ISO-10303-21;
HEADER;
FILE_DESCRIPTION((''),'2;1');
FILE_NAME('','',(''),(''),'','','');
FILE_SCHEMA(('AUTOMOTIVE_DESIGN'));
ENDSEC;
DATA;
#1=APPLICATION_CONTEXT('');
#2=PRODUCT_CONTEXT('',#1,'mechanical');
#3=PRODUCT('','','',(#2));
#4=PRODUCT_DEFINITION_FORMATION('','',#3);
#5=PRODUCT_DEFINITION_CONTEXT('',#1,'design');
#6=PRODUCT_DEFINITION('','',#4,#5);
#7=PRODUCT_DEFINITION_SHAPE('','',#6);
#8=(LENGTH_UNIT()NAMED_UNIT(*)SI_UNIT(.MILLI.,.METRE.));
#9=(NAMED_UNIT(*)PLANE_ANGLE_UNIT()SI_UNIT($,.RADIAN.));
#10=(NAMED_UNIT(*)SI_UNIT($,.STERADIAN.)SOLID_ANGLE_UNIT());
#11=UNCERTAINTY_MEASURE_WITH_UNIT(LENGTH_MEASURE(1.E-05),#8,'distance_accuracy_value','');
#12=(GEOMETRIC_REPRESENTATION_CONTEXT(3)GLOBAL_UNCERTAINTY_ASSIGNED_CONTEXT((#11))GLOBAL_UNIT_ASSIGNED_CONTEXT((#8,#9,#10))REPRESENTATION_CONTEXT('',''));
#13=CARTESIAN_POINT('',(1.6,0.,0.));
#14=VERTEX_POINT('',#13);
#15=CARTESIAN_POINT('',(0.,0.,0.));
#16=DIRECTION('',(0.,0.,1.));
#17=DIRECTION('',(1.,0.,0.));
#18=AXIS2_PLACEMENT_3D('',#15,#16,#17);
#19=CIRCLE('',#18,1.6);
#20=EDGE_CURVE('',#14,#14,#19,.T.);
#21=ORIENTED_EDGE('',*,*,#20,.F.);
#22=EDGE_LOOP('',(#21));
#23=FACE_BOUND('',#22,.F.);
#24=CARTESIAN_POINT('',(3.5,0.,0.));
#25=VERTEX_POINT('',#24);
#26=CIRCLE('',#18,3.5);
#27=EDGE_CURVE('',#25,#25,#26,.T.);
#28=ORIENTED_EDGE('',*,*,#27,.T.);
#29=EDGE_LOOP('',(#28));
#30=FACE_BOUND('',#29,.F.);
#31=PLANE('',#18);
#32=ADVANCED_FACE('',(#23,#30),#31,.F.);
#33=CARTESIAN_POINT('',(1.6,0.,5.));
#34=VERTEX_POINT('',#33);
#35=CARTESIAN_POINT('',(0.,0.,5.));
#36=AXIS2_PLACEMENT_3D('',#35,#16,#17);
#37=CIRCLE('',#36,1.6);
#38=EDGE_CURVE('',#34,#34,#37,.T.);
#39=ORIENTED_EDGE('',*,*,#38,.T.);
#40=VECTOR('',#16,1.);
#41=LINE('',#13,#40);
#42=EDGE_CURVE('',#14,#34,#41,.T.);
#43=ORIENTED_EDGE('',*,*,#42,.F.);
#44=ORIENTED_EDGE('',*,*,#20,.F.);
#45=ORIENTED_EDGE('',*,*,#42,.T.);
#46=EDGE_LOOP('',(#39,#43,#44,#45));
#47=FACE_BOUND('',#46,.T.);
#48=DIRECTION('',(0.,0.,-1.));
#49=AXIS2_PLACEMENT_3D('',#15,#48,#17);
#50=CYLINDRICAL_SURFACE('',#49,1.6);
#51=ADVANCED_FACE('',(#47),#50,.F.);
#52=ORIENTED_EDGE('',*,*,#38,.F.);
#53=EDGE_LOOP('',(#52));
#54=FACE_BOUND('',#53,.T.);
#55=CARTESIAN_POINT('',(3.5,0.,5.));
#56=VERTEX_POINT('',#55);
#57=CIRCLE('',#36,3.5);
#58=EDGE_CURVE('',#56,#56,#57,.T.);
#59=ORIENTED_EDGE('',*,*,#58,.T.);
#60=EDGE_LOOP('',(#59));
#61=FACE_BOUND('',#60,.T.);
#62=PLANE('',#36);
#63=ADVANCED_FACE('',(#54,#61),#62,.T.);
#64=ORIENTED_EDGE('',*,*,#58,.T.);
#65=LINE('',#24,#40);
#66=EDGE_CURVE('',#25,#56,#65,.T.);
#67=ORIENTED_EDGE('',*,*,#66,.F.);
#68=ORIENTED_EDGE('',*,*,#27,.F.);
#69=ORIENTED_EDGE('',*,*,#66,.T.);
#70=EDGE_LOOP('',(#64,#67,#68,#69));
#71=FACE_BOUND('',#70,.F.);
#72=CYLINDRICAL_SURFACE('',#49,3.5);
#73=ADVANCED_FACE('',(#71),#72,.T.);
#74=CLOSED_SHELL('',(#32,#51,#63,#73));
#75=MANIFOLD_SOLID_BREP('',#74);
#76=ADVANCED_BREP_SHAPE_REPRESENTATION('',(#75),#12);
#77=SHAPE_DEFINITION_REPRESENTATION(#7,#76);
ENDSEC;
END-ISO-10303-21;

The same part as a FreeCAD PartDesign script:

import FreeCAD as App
import Part
import Sketcher
Q = App.Units.Quantity

doc = App.newDocument("Part")
body = doc.addObject("PartDesign::Body", "Body")

sketch1 = body.newObject("Sketcher::SketchObject", "Sketch")
sketch1.AttachmentSupport = (doc.getObject("XY_Plane"), [""])
sketch1.MapMode = "FlatFace"
sketch1.addGeometry([
    Part.Circle(App.Vector(0, 0, 0), App.Vector(0, 0, 1), 3.5),
    Part.Circle(App.Vector(0, 0, 0), App.Vector(0, 0, 1), 1.6),
], False)
sketch1.addConstraint([
    Sketcher.Constraint("Coincident", 0, 3, -1, 1),
    Sketcher.Constraint("Coincident", 1, 3, -1, 1),
    Sketcher.Constraint("Diameter", 0, Q("7 mm")),
    Sketcher.Constraint("Diameter", 1, Q("3.2 mm")),
])
pad1 = body.newObject("PartDesign::Pad", "Pad")
pad1.Profile = sketch1
pad1.Length = 5

doc.recompute()
